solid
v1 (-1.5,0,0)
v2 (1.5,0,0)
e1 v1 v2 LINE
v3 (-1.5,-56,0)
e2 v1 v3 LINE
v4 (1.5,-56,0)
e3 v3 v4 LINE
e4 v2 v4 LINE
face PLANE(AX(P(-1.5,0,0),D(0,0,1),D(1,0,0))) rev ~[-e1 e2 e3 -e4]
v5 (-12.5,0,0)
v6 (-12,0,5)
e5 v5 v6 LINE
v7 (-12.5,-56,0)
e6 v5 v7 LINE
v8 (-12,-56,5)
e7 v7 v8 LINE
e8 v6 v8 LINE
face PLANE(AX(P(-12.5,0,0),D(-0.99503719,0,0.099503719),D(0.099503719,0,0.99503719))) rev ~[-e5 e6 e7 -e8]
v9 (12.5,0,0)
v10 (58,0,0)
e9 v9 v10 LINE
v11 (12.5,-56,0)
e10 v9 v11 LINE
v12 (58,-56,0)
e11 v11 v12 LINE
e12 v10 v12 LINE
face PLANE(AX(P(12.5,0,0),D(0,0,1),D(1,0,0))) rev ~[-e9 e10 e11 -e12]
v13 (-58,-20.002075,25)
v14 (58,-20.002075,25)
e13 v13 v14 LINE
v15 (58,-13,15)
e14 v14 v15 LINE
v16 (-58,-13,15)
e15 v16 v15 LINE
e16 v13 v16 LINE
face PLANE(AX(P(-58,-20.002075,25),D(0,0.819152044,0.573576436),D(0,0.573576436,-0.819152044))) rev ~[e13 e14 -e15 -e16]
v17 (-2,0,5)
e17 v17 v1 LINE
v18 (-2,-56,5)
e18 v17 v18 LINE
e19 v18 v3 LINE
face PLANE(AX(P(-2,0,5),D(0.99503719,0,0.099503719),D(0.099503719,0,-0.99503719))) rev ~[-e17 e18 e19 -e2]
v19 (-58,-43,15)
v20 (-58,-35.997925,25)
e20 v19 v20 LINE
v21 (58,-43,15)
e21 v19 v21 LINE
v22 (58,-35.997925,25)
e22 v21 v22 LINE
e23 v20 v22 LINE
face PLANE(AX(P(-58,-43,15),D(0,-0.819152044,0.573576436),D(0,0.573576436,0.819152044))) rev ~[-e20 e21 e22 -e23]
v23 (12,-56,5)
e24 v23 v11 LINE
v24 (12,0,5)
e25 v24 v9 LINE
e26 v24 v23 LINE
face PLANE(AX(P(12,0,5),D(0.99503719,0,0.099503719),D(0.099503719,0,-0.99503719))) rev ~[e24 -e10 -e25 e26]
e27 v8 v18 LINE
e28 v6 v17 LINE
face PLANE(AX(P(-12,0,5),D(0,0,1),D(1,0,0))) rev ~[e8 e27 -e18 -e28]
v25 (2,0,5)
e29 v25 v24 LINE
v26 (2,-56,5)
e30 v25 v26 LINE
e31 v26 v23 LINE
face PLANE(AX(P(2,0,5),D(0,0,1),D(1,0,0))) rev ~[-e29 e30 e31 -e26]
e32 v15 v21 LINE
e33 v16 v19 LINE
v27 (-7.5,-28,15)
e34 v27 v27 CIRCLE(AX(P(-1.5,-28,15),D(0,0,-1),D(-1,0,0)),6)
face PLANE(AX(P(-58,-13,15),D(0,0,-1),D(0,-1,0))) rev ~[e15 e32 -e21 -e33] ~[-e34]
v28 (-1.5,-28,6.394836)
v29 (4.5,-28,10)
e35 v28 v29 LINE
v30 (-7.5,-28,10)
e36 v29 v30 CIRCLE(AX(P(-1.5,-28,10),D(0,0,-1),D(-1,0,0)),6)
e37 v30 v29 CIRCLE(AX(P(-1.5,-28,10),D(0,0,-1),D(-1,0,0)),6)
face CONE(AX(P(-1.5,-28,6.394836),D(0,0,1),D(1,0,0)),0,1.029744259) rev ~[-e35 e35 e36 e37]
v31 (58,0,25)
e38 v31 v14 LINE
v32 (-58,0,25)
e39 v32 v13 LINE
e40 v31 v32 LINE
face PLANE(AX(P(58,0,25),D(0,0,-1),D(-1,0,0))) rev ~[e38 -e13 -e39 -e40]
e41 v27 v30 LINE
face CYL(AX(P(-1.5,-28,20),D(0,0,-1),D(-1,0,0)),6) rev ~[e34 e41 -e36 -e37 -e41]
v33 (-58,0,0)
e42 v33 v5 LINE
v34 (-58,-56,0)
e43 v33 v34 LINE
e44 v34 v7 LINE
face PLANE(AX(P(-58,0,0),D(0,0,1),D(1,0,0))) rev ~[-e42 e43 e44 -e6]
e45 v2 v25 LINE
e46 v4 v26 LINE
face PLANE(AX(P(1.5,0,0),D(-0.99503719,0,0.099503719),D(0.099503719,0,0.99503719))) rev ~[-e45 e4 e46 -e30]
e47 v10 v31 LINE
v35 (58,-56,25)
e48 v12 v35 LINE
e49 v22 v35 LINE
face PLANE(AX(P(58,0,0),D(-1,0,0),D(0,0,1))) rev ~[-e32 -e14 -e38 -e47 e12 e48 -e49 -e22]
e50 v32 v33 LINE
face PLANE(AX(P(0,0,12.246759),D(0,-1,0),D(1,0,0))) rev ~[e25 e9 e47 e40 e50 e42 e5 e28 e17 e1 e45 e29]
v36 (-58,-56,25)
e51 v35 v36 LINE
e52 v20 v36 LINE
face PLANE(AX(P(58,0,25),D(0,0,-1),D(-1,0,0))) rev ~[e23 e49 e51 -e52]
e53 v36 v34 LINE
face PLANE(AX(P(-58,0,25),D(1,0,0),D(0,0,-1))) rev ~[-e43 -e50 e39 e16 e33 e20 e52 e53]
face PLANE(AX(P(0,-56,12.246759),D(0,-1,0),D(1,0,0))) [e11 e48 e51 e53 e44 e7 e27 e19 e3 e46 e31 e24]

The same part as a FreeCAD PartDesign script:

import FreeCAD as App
import Part
import Sketcher
Q = App.Units.Quantity

doc = App.newDocument("Part")
params = doc.addObject("Spreadsheet::Sheet", "Params")
for row, (alias, value) in enumerate([
    ("sketch1_width", "3 mm"),
    ("sketch1_width2", "10 mm"),
    ("sketch1_width3", "116 mm"),
    ("sketch1_height", "25 mm"),
    ("sketch1_width4", "45.5 mm"),
    ("pad1_length", "56 mm"),
    ("sketch2_width", "30 mm"),
    ("sketch3_diameter", "12 mm"),
    ("hole_diameter", "12 mm"),
    ("hole_depth", "5 mm"),
], start=1):
    params.set(f"A{row}", alias)
    params.set(f"B{row}", "=" + value)
    params.setAlias(f"B{row}", alias)

body = doc.addObject("PartDesign::Body", "Body")

# Sketch on XZ plane
sketch1 = body.newObject("Sketcher::SketchObject", "Sketch")
sketch1.AttachmentSupport = (doc.getObject("XZ_Plane"), [""])
sketch1.MapMode = "FlatFace"
sketch1.addGeometry(Part.LineSegment(App.Vector(-1.5, 0, 0), App.Vector(1.5, 0, 0)), False)
sketch1.addGeometry(Part.LineSegment(App.Vector(1.5, 0, 0), App.Vector(2, 5, 0)), False)
sketch1.addGeometry(Part.LineSegment(App.Vector(2, 5, 0), App.Vector(12, 5, 0)), False)
sketch1.addGeometry(Part.LineSegment(App.Vector(12, 5, 0), App.Vector(12.5, 0, 0)), False)
sketch1.addGeometry(Part.LineSegment(App.Vector(12.5, 0, 0), App.Vector(58, 0, 0)), False)
sketch1.addGeometry(Part.LineSegment(App.Vector(58, 0, 0), App.Vector(58, 25, 0)), False)
sketch1.addGeometry(Part.LineSegment(App.Vector(58, 25, 0), App.Vector(-58, 25, 0)), False)
sketch1.addGeometry(Part.LineSegment(App.Vector(-58, 25, 0), App.Vector(-58, 0, 0)), False)
sketch1.addGeometry(Part.LineSegment(App.Vector(-58, 0, 0), App.Vector(-12.5, 0, 0)), False)
sketch1.addGeometry(Part.LineSegment(App.Vector(-12.5, 0, 0), App.Vector(-12, 5, 0)), False)
sketch1.addGeometry(Part.LineSegment(App.Vector(-12, 5, 0), App.Vector(-2, 5, 0)), False)
sketch1.addGeometry(Part.LineSegment(App.Vector(-2, 5, 0), App.Vector(-1.5, 0, 0)), False)
sketch1.addConstraint(Sketcher.Constraint("Coincident", 0, 2, 1, 1))
sketch1.addConstraint(Sketcher.Constraint("Coincident", 1, 2, 2, 1))
sketch1.addConstraint(Sketcher.Constraint("Coincident", 2, 2, 3, 1))
sketch1.addConstraint(Sketcher.Constraint("Coincident", 3, 2, 4, 1))
sketch1.addConstraint(Sketcher.Constraint("Coincident", 4, 2, 5, 1))
sketch1.addConstraint(Sketcher.Constraint("Coincident", 5, 2, 6, 1))
sketch1.addConstraint(Sketcher.Constraint("Coincident", 6, 2, 7, 1))
sketch1.addConstraint(Sketcher.Constraint("Coincident", 7, 2, 8, 1))
sketch1.addConstraint(Sketcher.Constraint("Coincident", 8, 2, 9, 1))
sketch1.addConstraint(Sketcher.Constraint("Coincident", 9, 2, 10, 1))
sketch1.addConstraint(Sketcher.Constraint("Coincident", 10, 2, 11, 1))
sketch1.addConstraint(Sketcher.Constraint("Coincident", 11, 2, 0, 1))
sketch1.addConstraint(Sketcher.Constraint("Horizontal", 0))
sketch1.addConstraint(Sketcher.Constraint("Horizontal", 2))
sketch1.addConstraint(Sketcher.Constraint("Horizontal", 4))
sketch1.addConstraint(Sketcher.Constraint("Vertical", 5))
sketch1.addConstraint(Sketcher.Constraint("Horizontal", 6))
sketch1.addConstraint(Sketcher.Constraint("Vertical", 7))
sketch1.addConstraint(Sketcher.Constraint("Horizontal", 8))
sketch1.addConstraint(Sketcher.Constraint("Horizontal", 10))
sketch1.addConstraint(Sketcher.Constraint("Symmetric", 4, 2, 7, 2, -1, 1))
sketch1.addConstraint(Sketcher.Constraint("Symmetric", 0, 2, 11, 2, -1, 1))
sketch1.addConstraint(Sketcher.Constraint("Symmetric", 3, 2, 8, 2, -2))
sketch1.addConstraint(Sketcher.Constraint("Symmetric", 2, 2, 9, 2, -2))
sketch1.addConstraint(Sketcher.Constraint("Parallel", 1, 9))
sketch1.addConstraint(Sketcher.Constraint("Parallel", 3, 11))
sketch1.addConstraint(Sketcher.Constraint("DistanceX", 0, 1, 0, 2, Q("3 mm")))
sketch1.addConstraint(Sketcher.Constraint("DistanceX", 2, 1, 2, 2, Q("10 mm")))
sketch1.addConstraint(Sketcher.Constraint("DistanceX", 6, 2, 6, 1, Q("116 mm")))
sketch1.addConstraint(Sketcher.Constraint("DistanceY", 5, 1, 5, 2, Q("25 mm")))
sketch1.addConstraint(Sketcher.Constraint("DistanceX", 4, 1, 4, 2, Q("45.5 mm")))
sketch1.addConstraint(Sketcher.Constraint("DistanceY", -1, 1, 1, 2, Q("5 mm")))
sketch1.setExpression("Constraints[26]", "Params.sketch1_width")
sketch1.setExpression("Constraints[27]", "Params.sketch1_width2")
sketch1.setExpression("Constraints[28]", "Params.sketch1_width3")
sketch1.setExpression("Constraints[29]", "Params.sketch1_height")
sketch1.setExpression("Constraints[30]", "Params.sketch1_width4")
pad1 = body.newObject("PartDesign::Pad", "Pad")
pad1.Profile = sketch1
pad1.setExpression("Length", "Params.pad1_length")

# Sketch on YZ plane
sketch2 = body.newObject("Sketcher::SketchObject", "Sketch001")
sketch2.AttachmentSupport = (doc.getObject("YZ_Plane"), [""])
sketch2.MapMode = "FlatFace"
sketch2.AttachmentOffset = App.Placement(App.Vector(0, 0, -58), App.Rotation())
sketch2.addGeometry(Part.LineSegment(App.Vector(-20.002075, 25, 0), App.Vector(-13, 15, 0)), False)
sketch2.addGeometry(Part.LineSegment(App.Vector(-13, 15, 0), App.Vector(-43, 15, 0)), False)
sketch2.addGeometry(Part.LineSegment(App.Vector(-43, 15, 0), App.Vector(-35.997925, 25, 0)), False)
sketch2.addGeometry(Part.LineSegment(App.Vector(-35.997925, 25, 0), App.Vector(-20.002075, 25, 0)), False)
sketch2.addConstraint(Sketcher.Constraint("Coincident", 0, 2, 1, 1))
sketch2.addConstraint(Sketcher.Constraint("Coincident", 1, 2, 2, 1))
sketch2.addConstraint(Sketcher.Constraint("Coincident", 2, 2, 3, 1))
sketch2.addConstraint(Sketcher.Constraint("Coincident", 3, 2, 0, 1))
sketch2.addConstraint(Sketcher.Constraint("Horizontal", 1))
sketch2.addConstraint(Sketcher.Constraint("Horizontal", 3))
sketch2.addConstraint(Sketcher.Constraint("Equal", 0, 2))
sketch2.addConstraint(Sketcher.Constraint("DistanceX", 1, 2, 1, 1, Q("30 mm")))
sketch2.addConstraint(Sketcher.Constraint("Angle", 0, Q("-55 deg")))
sketch2.addConstraint(Sketcher.Constraint("DistanceX", 0, 2, -1, 1, Q("13 mm")))
sketch2.addConstraint(Sketcher.Constraint("DistanceY", -1, 1, 0, 2, Q("15 mm")))
sketch2.addConstraint(Sketcher.Constraint("DistanceY", -1, 1, 2, 2, Q("25 mm")))
sketch2.setExpression("Constraints[7]", "Params.sketch2_width")
pocket1 = body.newObject("PartDesign::Pocket", "Pocket")
pocket1.Profile = sketch2
pocket1.Type = "ThroughAll"
pocket1.Reversed = True

# Sketch on XY plane
sketch3 = body.newObject("Sketcher::SketchObject", "Sketch002")
sketch3.AttachmentSupport = (doc.getObject("XY_Plane"), [""])
sketch3.MapMode = "FlatFace"
sketch3.AttachmentOffset = App.Placement(App.Vector(0, 0, 15), App.Rotation())
sketch3.addGeometry(Part.Circle(App.Vector(-1.5, -28, 0), App.Vector(0, 0, 1), 6), False)
sketch3.addConstraint(Sketcher.Constraint("Diameter", 0, Q("12 mm")))
sketch3.addConstraint(Sketcher.Constraint("DistanceY", 0, 3, -1, 1, Q("28 mm")))
sketch3.addConstraint(Sketcher.Constraint("DistanceX", 0, 3, -1, 1, Q("1.5 mm")))
sketch3.setExpression("Constraints[0]", "Params.sketch3_diameter")
doc.recompute()
hole = body.newObject("PartDesign::Hole", "Hole")
hole.Profile = sketch3
hole.ThreadType = "None"
hole.setExpression("Diameter", "Params.hole_diameter")
hole.DepthType = "Dimension"
hole.setExpression("Depth", "Params.hole_depth")
hole.DrillPoint = "Angled"
hole.DrillPointAngle = 118

doc.recompute()
